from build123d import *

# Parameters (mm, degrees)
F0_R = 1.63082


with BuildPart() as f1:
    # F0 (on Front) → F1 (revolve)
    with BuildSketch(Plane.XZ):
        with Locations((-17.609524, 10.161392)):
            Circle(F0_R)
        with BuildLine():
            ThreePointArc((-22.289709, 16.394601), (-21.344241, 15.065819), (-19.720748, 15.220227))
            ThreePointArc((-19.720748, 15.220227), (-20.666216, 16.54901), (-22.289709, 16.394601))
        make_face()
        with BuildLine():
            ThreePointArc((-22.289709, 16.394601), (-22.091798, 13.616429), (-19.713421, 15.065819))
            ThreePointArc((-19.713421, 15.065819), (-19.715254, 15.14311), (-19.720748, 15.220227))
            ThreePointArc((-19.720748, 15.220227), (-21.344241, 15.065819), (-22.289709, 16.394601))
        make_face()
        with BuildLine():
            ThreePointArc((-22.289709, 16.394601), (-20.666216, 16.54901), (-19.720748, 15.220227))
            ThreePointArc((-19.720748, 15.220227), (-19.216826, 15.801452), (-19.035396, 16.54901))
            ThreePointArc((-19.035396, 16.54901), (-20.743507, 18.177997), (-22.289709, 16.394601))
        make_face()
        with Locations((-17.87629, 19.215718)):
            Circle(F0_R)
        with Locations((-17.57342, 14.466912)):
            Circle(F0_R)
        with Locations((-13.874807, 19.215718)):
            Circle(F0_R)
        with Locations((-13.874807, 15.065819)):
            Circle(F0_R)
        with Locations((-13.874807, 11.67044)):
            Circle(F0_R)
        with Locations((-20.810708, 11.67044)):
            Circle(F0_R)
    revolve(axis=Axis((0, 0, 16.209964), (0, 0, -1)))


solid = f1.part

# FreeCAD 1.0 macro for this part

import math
import FreeCAD as App
import Part
import Sketcher

V = App.Vector

doc = App.newDocument("Part")
body = doc.addObject("PartDesign::Body", "Body")
body.AllowCompound = True

# Sketch on XZ plane
sketch1 = body.newObject("Sketcher::SketchObject", "Sketch")
sketch1.AttachmentSupport = (doc.getObject("XZ_Plane"), [""])
sketch1.MapMode = "FlatFace"
sketch1.addGeometry(Part.Circle(V(-17.609524, 10.161392, 0), V(0, 0, 1), 1.63082), False)
sketch1.addGeometry(Part.ArcOfCircle(Part.Circle(V(-21.344241, 15.065819, 0), V(0, 0, 1), 1.63082), math.radians(125.43299), math.radians(360.000009)), False)
sketch1.addGeometry(Part.ArcOfCircle(Part.Circle(V(-21.344259, 15.06581, 0), V(0, 0, 1), 1.630838), math.radians(0.000317), math.radians(5.43323)), False)
sketch1.addGeometry(Part.ArcOfCircle(Part.Circle(V(-20.666215, 16.549009, 0), V(0, 0, 1), 1.630819), math.radians(-54.567052), math.radians(0.000019)), False)
sketch1.addGeometry(Part.ArcOfCircle(Part.Circle(V(-20.666216, 16.54901, 0), V(0, 0, 1), 1.63082), math.radians(0.000002), math.radians(185.433006)), False)
sketch1.addGeometry(Part.Circle(V(-17.87629, 19.215718, 0), V(0, 0, 1), 1.63082), False)
sketch1.addGeometry(Part.Circle(V(-17.57342, 14.466912, 0), V(0, 0, 1), 1.63082), False)
sketch1.addGeometry(Part.Circle(V(-13.874807, 19.215718, 0), V(0, 0, 1), 1.63082), False)
sketch1.addGeometry(Part.Circle(V(-13.874807, 15.065819, 0), V(0, 0, 1), 1.63082), False)
sketch1.addGeometry(Part.Circle(V(-13.874807, 11.67044, 0), V(0, 0, 1), 1.63082), False)
sketch1.addGeometry(Part.Circle(V(-20.810708, 11.67044, 0), V(0, 0, 1), 1.63082), False)
sketch1.addConstraint(Sketcher.Constraint("Coincident", 1, 2, 2, 1))
sketch1.addConstraint(Sketcher.Constraint("Coincident", 2, 2, 3, 1))
sketch1.addConstraint(Sketcher.Constraint("Tangent", 3, 2, 4, 1))
sketch1.addConstraint(Sketcher.Constraint("Coincident", 4, 2, 1, 1))
sketch1.addConstraint(Sketcher.Constraint("Equal", 0, 1))
sketch1.addConstraint(Sketcher.Constraint("Equal", 1, 3))
sketch1.addConstraint(Sketcher.Constraint("Equal", 3, 4))
sketch1.addConstraint(Sketcher.Constraint("Equal", 4, 5))
sketch1.addConstraint(Sketcher.Constraint("Equal", 5, 6))
sketch1.addConstraint(Sketcher.Constraint("Equal", 6, 7))
sketch1.addConstraint(Sketcher.Constraint("Equal", 7, 8))
sketch1.addConstraint(Sketcher.Constraint("Equal", 8, 9))
sketch1.addConstraint(Sketcher.Constraint("Equal", 9, 10))
sketch1.addConstraint(Sketcher.Constraint("Horizontal", 5, 3, 7, 3))
sketch1.addConstraint(Sketcher.Constraint("Horizontal", 1, 3, 8, 3))
sketch1.addConstraint(Sketcher.Constraint("Horizontal", 9, 3, 10, 3))
sketch1.addConstraint(Sketcher.Constraint("Horizontal", 8, 3, 1, 2))
sketch1.addConstraint(Sketcher.Constraint("Horizontal", 4, 3, 3, 2))
sketch1.addConstraint(Sketcher.Constraint("Vertical", 7, 3, 8, 3))
sketch1.addConstraint(Sketcher.Constraint("Vertical", 8, 3, 9, 3))
sketch1.addConstraint(Sketcher.Constraint("Diameter", 0, 3.26164))
sketch1.addConstraint(Sketcher.Constraint("DistanceX", 1, 2, 6, 3, 2.140001))
sketch1.addConstraint(Sketcher.Constraint("Radius", 2, 1.630838))
sketch1.addConstraint(Sketcher.Constraint("DistanceY", -1, 1, 4, 2, 16.394601))
sketch1.addConstraint(Sketcher.Constraint("DistanceY", 2, 3, 3, 3, 1.483199))
sketch1.addConstraint(Sketcher.Constraint("DistanceY", 1, 3, 5, 3, 4.149899))
sketch1.addConstraint(Sketcher.Constraint("DistanceY", -1, 1, 0, 3, 10.161392))
sketch1.addConstraint(Sketcher.Constraint("DistanceX", 1, 3, -1, 1, 21.344241))
sketch1.addConstraint(Sketcher.Constraint("DistanceY", -1, 1, 1, 3, 15.065819))
sketch1.addConstraint(Sketcher.Constraint("DistanceY", -1, 1, 2, 3, 15.06581))
sketch1.addConstraint(Sketcher.Constraint("DistanceX", 5, 3, -1, 1, 17.87629))
sketch1.addConstraint(Sketcher.Constraint("DistanceY", -1, 1, 9, 3, 11.67044))
sketch1.addConstraint(Sketcher.Constraint("DistanceX", 10, 3, -1, 1, 20.810708))
sketch1.addConstraint(Sketcher.Constraint("DistanceX", 3, 3, 0, 3, 3.056691))
sketch1.addConstraint(Sketcher.Constraint("DistanceY", 0, 3, 6, 3, 4.30552))
sketch1.addConstraint(Sketcher.Constraint("DistanceX", 3, 3, 7, 3, 6.791408))
revolution = body.newObject("PartDesign::Revolution", "Revolution")
revolution.Profile = sketch1
revolution.ReferenceAxis = (sketch1, ["V_Axis"])
revolution.Angle = 360

doc.recompute()
